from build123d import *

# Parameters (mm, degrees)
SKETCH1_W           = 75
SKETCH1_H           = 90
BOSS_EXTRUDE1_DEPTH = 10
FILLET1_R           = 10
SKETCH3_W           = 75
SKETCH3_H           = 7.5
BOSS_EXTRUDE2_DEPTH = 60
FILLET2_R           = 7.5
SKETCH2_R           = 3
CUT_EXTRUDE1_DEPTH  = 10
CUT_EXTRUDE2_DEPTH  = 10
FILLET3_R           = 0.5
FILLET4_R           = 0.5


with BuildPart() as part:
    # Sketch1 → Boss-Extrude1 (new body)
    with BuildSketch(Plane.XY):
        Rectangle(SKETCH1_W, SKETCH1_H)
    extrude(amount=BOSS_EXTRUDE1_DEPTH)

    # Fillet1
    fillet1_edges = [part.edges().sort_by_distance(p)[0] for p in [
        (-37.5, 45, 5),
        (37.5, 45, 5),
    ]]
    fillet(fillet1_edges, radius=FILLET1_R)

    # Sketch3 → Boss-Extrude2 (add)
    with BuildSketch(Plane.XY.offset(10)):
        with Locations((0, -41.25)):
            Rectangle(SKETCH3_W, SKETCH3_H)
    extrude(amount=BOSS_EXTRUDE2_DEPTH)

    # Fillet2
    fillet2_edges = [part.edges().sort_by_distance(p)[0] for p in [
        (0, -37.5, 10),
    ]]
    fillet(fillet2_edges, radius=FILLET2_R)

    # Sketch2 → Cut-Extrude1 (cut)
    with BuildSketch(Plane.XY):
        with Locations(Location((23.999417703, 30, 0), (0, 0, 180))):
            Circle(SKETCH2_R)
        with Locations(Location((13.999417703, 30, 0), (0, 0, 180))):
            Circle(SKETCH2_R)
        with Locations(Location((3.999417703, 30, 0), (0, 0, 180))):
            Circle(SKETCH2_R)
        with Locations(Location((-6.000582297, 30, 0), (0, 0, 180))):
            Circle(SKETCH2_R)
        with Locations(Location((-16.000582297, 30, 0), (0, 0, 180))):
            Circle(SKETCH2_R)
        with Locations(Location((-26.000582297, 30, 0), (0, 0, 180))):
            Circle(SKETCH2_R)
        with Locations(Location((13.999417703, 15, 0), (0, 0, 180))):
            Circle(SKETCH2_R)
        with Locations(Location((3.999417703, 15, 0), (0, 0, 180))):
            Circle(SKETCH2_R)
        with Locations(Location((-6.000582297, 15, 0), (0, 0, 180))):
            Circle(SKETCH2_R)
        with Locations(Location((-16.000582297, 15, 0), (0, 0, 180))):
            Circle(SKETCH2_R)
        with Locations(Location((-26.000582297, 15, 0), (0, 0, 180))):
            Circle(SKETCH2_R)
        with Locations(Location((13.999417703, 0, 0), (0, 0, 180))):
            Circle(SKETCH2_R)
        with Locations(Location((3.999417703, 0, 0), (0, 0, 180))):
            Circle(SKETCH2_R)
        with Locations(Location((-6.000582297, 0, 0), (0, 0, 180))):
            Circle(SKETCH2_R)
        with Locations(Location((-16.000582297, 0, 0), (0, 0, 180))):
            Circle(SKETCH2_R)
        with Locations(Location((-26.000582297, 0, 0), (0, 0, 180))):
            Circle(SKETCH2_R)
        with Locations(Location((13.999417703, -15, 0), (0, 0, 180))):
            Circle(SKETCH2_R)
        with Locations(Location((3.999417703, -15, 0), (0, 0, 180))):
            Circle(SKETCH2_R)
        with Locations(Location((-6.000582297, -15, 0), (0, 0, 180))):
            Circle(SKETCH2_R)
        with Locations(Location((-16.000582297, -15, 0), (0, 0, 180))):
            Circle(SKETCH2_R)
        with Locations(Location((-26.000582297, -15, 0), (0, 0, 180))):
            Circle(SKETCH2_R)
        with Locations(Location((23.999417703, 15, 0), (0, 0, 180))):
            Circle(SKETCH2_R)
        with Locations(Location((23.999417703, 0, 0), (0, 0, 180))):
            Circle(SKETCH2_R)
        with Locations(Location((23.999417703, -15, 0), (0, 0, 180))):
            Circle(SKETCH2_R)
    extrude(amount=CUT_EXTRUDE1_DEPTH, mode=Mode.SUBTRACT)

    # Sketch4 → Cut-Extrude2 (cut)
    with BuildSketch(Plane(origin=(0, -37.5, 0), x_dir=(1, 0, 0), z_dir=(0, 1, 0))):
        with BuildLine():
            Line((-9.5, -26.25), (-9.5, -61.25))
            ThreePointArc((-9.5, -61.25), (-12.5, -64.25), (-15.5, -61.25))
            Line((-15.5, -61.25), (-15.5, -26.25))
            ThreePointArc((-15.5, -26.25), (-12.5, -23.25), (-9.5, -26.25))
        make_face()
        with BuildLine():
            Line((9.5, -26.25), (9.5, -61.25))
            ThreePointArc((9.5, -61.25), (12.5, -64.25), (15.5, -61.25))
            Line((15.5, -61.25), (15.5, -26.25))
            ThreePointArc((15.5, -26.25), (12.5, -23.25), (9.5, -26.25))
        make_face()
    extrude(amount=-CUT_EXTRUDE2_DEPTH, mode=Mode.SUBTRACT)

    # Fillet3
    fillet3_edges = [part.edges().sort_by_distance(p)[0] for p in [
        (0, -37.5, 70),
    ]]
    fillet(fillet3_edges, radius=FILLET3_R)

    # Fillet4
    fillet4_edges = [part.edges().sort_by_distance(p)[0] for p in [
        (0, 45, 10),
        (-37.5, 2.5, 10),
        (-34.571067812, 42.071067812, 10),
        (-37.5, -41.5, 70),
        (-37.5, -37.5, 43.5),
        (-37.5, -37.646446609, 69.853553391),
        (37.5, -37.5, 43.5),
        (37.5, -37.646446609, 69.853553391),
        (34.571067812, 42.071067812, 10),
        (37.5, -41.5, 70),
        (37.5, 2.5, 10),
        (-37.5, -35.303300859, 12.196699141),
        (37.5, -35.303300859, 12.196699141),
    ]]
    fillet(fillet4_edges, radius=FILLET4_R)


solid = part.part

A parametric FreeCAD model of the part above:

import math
import FreeCAD as App
import Part
import Sketcher

V = App.Vector
Q = App.Units.Quantity


def edges_at(feature, points):
    """Names of the edges that pass closest to the given points."""
    edges = feature.Shape.Edges
    near = lambda p: min(range(len(edges)), key=lambda i: edges[i].distToShape(Part.Vertex(*p))[0])
    return sorted({f"Edge{near(p) + 1}" for p in points})

doc = App.newDocument("Part")
params = doc.addObject("Spreadsheet::Sheet", "Params")
for row, (alias, value) in enumerate([
    ("sketch1_width", "75 mm"),
    ("sketch1_height", "90 mm"),
    ("pad1_length", "10 mm"),
    ("fillet_radius", "10 mm"),
    ("sketch2_width", "75 mm"),
    ("sketch2_height", "7.5 mm"),
    ("pad2_length", "60 mm"),
    ("fillet2_radius", "7.5 mm"),
    ("sketch3_diameter", "6 mm"),
    ("pocket1_length", "10 mm"),
    ("sketch4_radius", "3 mm"),
    ("sketch4_height", "35 mm"),
    ("pocket2_length", "10 mm"),
    ("fillet3_radius", "0.5 mm"),
    ("fillet4_radius", "0.5 mm"),
], start=1):
    params.set(f"A{row}", alias)
    params.set(f"B{row}", "=" + value)
    params.setAlias(f"B{row}", alias)

body = doc.addObject("PartDesign::Body", "Body")

# Sketch on XY plane
sketch1 = doc.addObject("Sketcher::SketchObject", "Sketch")
body.addObject(sketch1)
sketch1.AttachmentSupport = (doc.XY_Plane, [""])
sketch1.MapMode = "FlatFace"
sketch1.addGeometry(Part.LineSegment(V(-38, 45, 0), V(-38, -45, 0)), False)
sketch1.addGeometry(Part.LineSegment(V(-38, -45, 0), V(38, -45, 0)), False)
sketch1.addGeometry(Part.LineSegment(V(38, -45, 0), V(38, 45, 0)), False)
sketch1.addGeometry(Part.LineSegment(V(38, 45, 0), V(-38, 45, 0)), False)
sketch1.addConstraint(Sketcher.Constraint("Coincident", 0, 2, 1, 1))
sketch1.addConstraint(Sketcher.Constraint("Coincident", 1, 2, 2, 1))
sketch1.addConstraint(Sketcher.Constraint("Coincident", 2, 2, 3, 1))
sketch1.addConstraint(Sketcher.Constraint("Coincident", 3, 2, 0, 1))
sketch1.addConstraint(Sketcher.Constraint("Vertical", 0))
sketch1.addConstraint(Sketcher.Constraint("Horizontal", 1))
sketch1.addConstraint(Sketcher.Constraint("Vertical", 2))
sketch1.addConstraint(Sketcher.Constraint("Horizontal", 3))
sketch1.addConstraint(Sketcher.Constraint("Symmetric", 0, 2, 2, 2, -1, 1))
sketch1.addConstraint(Sketcher.Constraint("DistanceX", 1, 1, 1, 2, Q("75 mm")))
sketch1.addConstraint(Sketcher.Constraint("DistanceY", 0, 2, 0, 1, Q("90 mm")))
sketch1.setExpression("Constraints[9]", "Params.sketch1_width")
sketch1.setExpression("Constraints[10]", "Params.sketch1_height")
pad1 = doc.addObject("PartDesign::Pad", "Pad")
body.addObject(pad1)
pad1.Profile = sketch1
pad1.setExpression("Length", "Params.pad1_length")
doc.recompute()

fillet = doc.addObject("PartDesign::Fillet", "Fillet")
body.addObject(fillet)
fillet.Base = (pad1, edges_at(pad1, [(-37.5, 45, 5), (37.5, 45, 5)]))
fillet.setExpression("Radius", "Params.fillet_radius")

# Sketch on XY plane
sketch2 = doc.addObject("Sketcher::SketchObject", "Sketch001")
body.addObject(sketch2)
sketch2.AttachmentSupport = (doc.XY_Plane, [""])
sketch2.MapMode = "FlatFace"
sketch2.AttachmentOffset = App.Placement(V(0, 0, 10), App.Rotation())
sketch2.addGeometry(Part.LineSegment(V(-38, -38, 0), V(-38, -45, 0)), False)
sketch2.addGeometry(Part.LineSegment(V(-38, -45, 0), V(38, -45, 0)), False)
sketch2.addGeometry(Part.LineSegment(V(38, -45, 0), V(38, -38, 0)), False)
sketch2.addGeometry(Part.LineSegment(V(38, -38, 0), V(-38, -38, 0)), False)
sketch2.addConstraint(Sketcher.Constraint("Coincident", 0, 2, 1, 1))
sketch2.addConstraint(Sketcher.Constraint("Coincident", 1, 2, 2, 1))
sketch2.addConstraint(Sketcher.Constraint("Coincident", 2, 2, 3, 1))
sketch2.addConstraint(Sketcher.Constraint("Coincident", 3, 2, 0, 1))
sketch2.addConstraint(Sketcher.Constraint("Vertical", 0))
sketch2.addConstraint(Sketcher.Constraint("Horizontal", 1))
sketch2.addConstraint(Sketcher.Constraint("Vertical", 2))
sketch2.addConstraint(Sketcher.Constraint("Horizontal", 3))
sketch2.addConstraint(Sketcher.Constraint("DistanceX", 1, 1, 1, 2, Q("75 mm")))
sketch2.addConstraint(Sketcher.Constraint("DistanceY", 0, 2, 0, 1, Q("7.5 mm")))
sketch2.addConstraint(Sketcher.Constraint("DistanceY", 0, 2, -1, 1, Q("45 mm")))
sketch2.addConstraint(Sketcher.Constraint("DistanceX", 0, 2, -1, 1, Q("37.5 mm")))
sketch2.setExpression("Constraints[8]", "Params.sketch2_width")
sketch2.setExpression("Constraints[9]", "Params.sketch2_height")
pad2 = doc.addObject("PartDesign::Pad", "Pad001")
body.addObject(pad2)
pad2.Profile = sketch2
pad2.setExpression("Length", "Params.pad2_length")
doc.recompute()

fillet2 = doc.addObject("PartDesign::Fillet", "Fillet001")
body.addObject(fillet2)
fillet2.Base = (pad2, edges_at(pad2, [(0, -37.5, 10)]))
fillet2.setExpression("Radius", "Params.fillet2_radius")

# Sketch on XY plane
sketch3 = doc.addObject("Sketcher::SketchObject", "Sketch002")
body.addObject(sketch3)
sketch3.AttachmentSupport = (doc.XY_Plane, [""])
sketch3.MapMode = "FlatFace"
sketch3.addGeometry(Part.Circle(V(24, 30, 0), V(0, 0, 1), 3), False)
sketch3.addGeometry(Part.Circle(V(14, 30, 0), V(0, 0, 1), 3), False)
sketch3.addGeometry(Part.Circle(V(4, 30, 0), V(0, 0, 1), 3), False)
sketch3.addGeometry(Part.Circle(V(-6, 30, 0), V(0, 0, 1), 3), False)
sketch3.addGeometry(Part.Circle(V(-16, 30, 0), V(0, 0, 1), 3), False)
sketch3.addGeometry(Part.Circle(V(-26, 30, 0), V(0, 0, 1), 3), False)
sketch3.addGeometry(Part.Circle(V(14, 15, 0), V(0, 0, 1), 3), False)
sketch3.addGeometry(Part.Circle(V(4, 15, 0), V(0, 0, 1), 3), False)
sketch3.addGeometry(Part.Circle(V(-6, 15, 0), V(0, 0, 1), 3), False)
sketch3.addGeometry(Part.Circle(V(-16, 15, 0), V(0, 0, 1), 3), False)
sketch3.addGeometry(Part.Circle(V(-26, 15, 0), V(0, 0, 1), 3), False)
sketch3.addGeometry(Part.Circle(V(14, 0, 0), V(0, 0, 1), 3), False)
sketch3.addGeometry(Part.Circle(V(4, 0, 0), V(0, 0, 1), 3), False)
sketch3.addGeometry(Part.Circle(V(-6, 0, 0), V(0, 0, 1), 3), False)
sketch3.addGeometry(Part.Circle(V(-16, 0, 0), V(0, 0, 1), 3), False)
sketch3.addGeometry(Part.Circle(V(-26, 0, 0), V(0, 0, 1), 3), False)
sketch3.addGeometry(Part.Circle(V(14, -15, 0), V(0, 0, 1), 3), False)
sketch3.addGeometry(Part.Circle(V(4, -15, 0), V(0, 0, 1), 3), False)
sketch3.addGeometry(Part.Circle(V(-6, -15, 0), V(0, 0, 1), 3), False)
sketch3.addGeometry(Part.Circle(V(-16, -15, 0), V(0, 0, 1), 3), False)
sketch3.addGeometry(Part.Circle(V(-26, -15, 0), V(0, 0, 1), 3), False)
sketch3.addGeometry(Part.Circle(V(24, 15, 0), V(0, 0, 1), 3), False)
sketch3.addGeometry(Part.Circle(V(24, 0, 0), V(0, 0, 1), 3), False)
sketch3.addGeometry(Part.Circle(V(24, -15, 0), V(0, 0, 1), 3), False)
sketch3.addConstraint(Sketcher.Constraint("Equal", 0, 1))
sketch3.addConstraint(Sketcher.Constraint("Equal", 1, 2))
sketch3.addConstraint(Sketcher.Constraint("Equal", 2, 3))
sketch3.addConstraint(Sketcher.Constraint("Equal", 3, 4))
sketch3.addConstraint(Sketcher.Constraint("Equal", 4, 5))
sketch3.addConstraint(Sketcher.Constraint("Equal", 5, 6))
sketch3.addConstraint(Sketcher.Constraint("Equal", 6, 7))
sketch3.addConstraint(Sketcher.Constraint("Equal", 7, 8))
sketch3.addConstraint(Sketcher.Constraint("Equal", 8, 9))
sketch3.addConstraint(Sketcher.Constraint("Equal", 9, 10))
sketch3.addConstraint(Sketcher.Constraint("Equal", 10, 11))
sketch3.addConstraint(Sketcher.Constraint("Equal", 11, 12))
sketch3.addConstraint(Sketcher.Constraint("Equal", 12, 13))
sketch3.addConstraint(Sketcher.Constraint("Equal", 13, 14))
sketch3.addConstraint(Sketcher.Constraint("Equal", 14, 15))
sketch3.addConstraint(Sketcher.Constraint("Equal", 15, 16))
sketch3.addConstraint(Sketcher.Constraint("Equal", 16, 17))
sketch3.addConstraint(Sketcher.Constraint("Equal", 17, 18))
sketch3.addConstraint(Sketcher.Constraint("Equal", 18, 19))
sketch3.addConstraint(Sketcher.Constraint("Equal", 19, 20))
sketch3.addConstraint(Sketcher.Constraint("Equal", 20, 21))
sketch3.addConstraint(Sketcher.Constraint("Equal", 21, 22))
sketch3.addConstraint(Sketcher.Constraint("Equal", 22, 23))
sketch3.addConstraint(Sketcher.Constraint("Symmetric", 6, 3, 16, 3, -1))
sketch3.addConstraint(Sketcher.Constraint("Symmetric", 7, 3, 17, 3, -1))
sketch3.addConstraint(Sketcher.Constraint("Symmetric", 8, 3, 18, 3, -1))
sketch3.addConstraint(Sketcher.Constraint("Symmetric", 9, 3, 19, 3, -1))
sketch3.addConstraint(Sketcher.Constraint("Symmetric", 10, 3, 20, 3, -1))
sketch3.addConstraint(Sketcher.Constraint("Symmetric", 21, 3, 23, 3, -1))
sketch3.addConstraint(Sketcher.Constraint("PointOnObject", 11, 3, -1))
sketch3.addConstraint(Sketcher.Constraint("PointOnObject", 12, 3, -1))
sketch3.addConstraint(Sketcher.Constraint("PointOnObject", 13, 3, -1))
sketch3.addConstraint(Sketcher.Constraint("PointOnObject", 14, 3, -1))
sketch3.addConstraint(Sketcher.Constraint("PointOnObject", 15, 3, -1))
sketch3.addConstraint(Sketcher.Constraint("PointOnObject", 22, 3, -1))
sketch3.addConstraint(Sketcher.Constraint("Horizontal", 0, 3, 1, 3))
sketch3.addConstraint(Sketcher.Constraint("Horizontal", 1, 3, 2, 3))
sketch3.addConstraint(Sketcher.Constraint("Horizontal", 2, 3, 3, 3))
sketch3.addConstraint(Sketcher.Constraint("Horizontal", 3, 3, 4, 3))
sketch3.addConstraint(Sketcher.Constraint("Horizontal", 4, 3, 5, 3))
sketch3.addConstraint(Sketcher.Constraint("Horizontal", 6, 3, 7, 3))
sketch3.addConstraint(Sketcher.Constraint("Horizontal", 7, 3, 8, 3))
sketch3.addConstraint(Sketcher.Constraint("Horizontal", 8, 3, 9, 3))
sketch3.addConstraint(Sketcher.Constraint("Horizontal", 9, 3, 10, 3))
sketch3.addConstraint(Sketcher.Constraint("Horizontal", 10, 3, 21, 3))
sketch3.addConstraint(Sketcher.Constraint("Vertical", 1, 3, 6, 3))
sketch3.addConstraint(Sketcher.Constraint("Vertical", 2, 3, 7, 3))
sketch3.addConstraint(Sketcher.Constraint("Vertical", 3, 3, 8, 3))
sketch3.addConstraint(Sketcher.Constraint("Vertical", 4, 3, 9, 3))
sketch3.addConstraint(Sketcher.Constraint("Vertical", 5, 3, 10, 3))
sketch3.addConstraint(Sketcher.Constraint("Vertical", 6, 3, 11, 3))
sketch3.addConstraint(Sketcher.Constraint("Vertical", 7, 3, 12, 3))
sketch3.addConstraint(Sketcher.Constraint("Vertical", 8, 3, 13, 3))
sketch3.addConstraint(Sketcher.Constraint("Vertical", 9, 3, 14, 3))
sketch3.addConstraint(Sketcher.Constraint("Vertical", 10, 3, 15, 3))
sketch3.addConstraint(Sketcher.Constraint("Vertical", 0, 3, 21, 3))
sketch3.addConstraint(Sketcher.Constraint("Vertical", 21, 3, 22, 3))
sketch3.addConstraint(Sketcher.Constraint("Diameter", 0, Q("6 mm")))
sketch3.addConstraint(Sketcher.Constraint("DistanceY", -1, 1, 0, 3, Q("30 mm")))
sketch3.addConstraint(Sketcher.Constraint("DistanceY", -1, 1, 6, 3, Q("15 mm")))
sketch3.addConstraint(Sketcher.Constraint("DistanceX", 1, 3, 0, 3, Q("10 mm")))
sketch3.addConstraint(Sketcher.Constraint("DistanceX", 2, 3, 1, 3, Q("10 mm")))
sketch3.addConstraint(Sketcher.Constraint("DistanceX", 3, 3, 2, 3, Q("10 mm")))
sketch3.addConstraint(Sketcher.Constraint("DistanceX", 4, 3, 3, 3, Q("10 mm")))
sketch3.addConstraint(Sketcher.Constraint("DistanceX", 5, 3, 4, 3, Q("10 mm")))
sketch3.addConstraint(Sketcher.Constraint("DistanceX", -1, 1, 0, 3, Q("23.999418 mm")))
sketch3.setExpression("Constraints[57]", "Params.sketch3_diameter")
pocket1 = doc.addObject("PartDesign::Pocket", "Pocket")
body.addObject(pocket1)
pocket1.Profile = sketch3
pocket1.setExpression("Length", "Params.pocket1_length")
pocket1.Reversed = True

# Sketch on XZ plane
sketch4 = doc.addObject("Sketcher::SketchObject", "Sketch003")
body.addObject(sketch4)
sketch4.AttachmentSupport = (doc.XZ_Plane, [""])
sketch4.MapMode = "FlatFace"
sketch4.AttachmentOffset = App.Placement(V(0, 0, 37.5), App.Rotation())
sketch4.addGeometry(Part.LineSegment(V(-9.5, 61.2, 0), V(-9.5, 26.2, 0)), False)
sketch4.addGeometry(Part.ArcOfCircle(Part.Circle(V(-12.5, 26.2, 0), V(0, 0, 1), 3), math.radians(180), math.radians(360)), False)
sketch4.addGeometry(Part.LineSegment(V(-15.5, 26.2, 0), V(-15.5, 61.2, 0)), False)
sketch4.addGeometry(Part.ArcOfCircle(Part.Circle(V(-12.5, 61.2, 0), V(0, 0, 1), 3), math.radians(0), math.radians(180)), False)
sketch4.addGeometry(Part.LineSegment(V(9.5, 26.2, 0), V(9.5, 61.2, 0)), False)
sketch4.addGeometry(Part.ArcOfCircle(Part.Circle(V(12.5, 61.2, 0), V(0, 0, 1), 3), math.radians(0), math.radians(180)), False)
sketch4.addGeometry(Part.LineSegment(V(15.5, 61.2, 0), V(15.5, 26.2, 0)), False)
sketch4.addGeometry(Part.ArcOfCircle(Part.Circle(V(12.5, 26.2, 0), V(0, 0, 1), 3), math.radians(180), math.radians(360)), False)
sketch4.addConstraint(Sketcher.Constraint("Tangent", 0, 2, 1, 2))
sketch4.addConstraint(Sketcher.Constraint("Tangent", 1, 1, 2, 1))
sketch4.addConstraint(Sketcher.Constraint("Tangent", 2, 2, 3, 2))
sketch4.addConstraint(Sketcher.Constraint("Tangent", 3, 1, 0, 1))
sketch4.addConstraint(Sketcher.Constraint("Tangent", 4, 2, 5, 2))
sketch4.addConstraint(Sketcher.Constraint("Tangent", 5, 1, 6, 1))
sketch4.addConstraint(Sketcher.Constraint("Tangent", 6, 2, 7, 2))
sketch4.addConstraint(Sketcher.Constraint("Tangent", 7, 1, 4, 1))
sketch4.addConstraint(Sketcher.Constraint("Vertical", 0))
sketch4.addConstraint(Sketcher.Constraint("Vertical", 2))
sketch4.addConstraint(Sketcher.Constraint("Vertical", 4))
sketch4.addConstraint(Sketcher.Constraint("Vertical", 6))
sketch4.addConstraint(Sketcher.Constraint("Equal", 3, 5))
sketch4.addConstraint(Sketcher.Constraint("Symmetric", 3, 3, 5, 3, -2))
sketch4.addConstraint(Sketcher.Constraint("Horizontal", 1, 3, 7, 3))
sketch4.addConstraint(Sketcher.Constraint("Radius", 1, Q("3 mm")))
sketch4.addConstraint(Sketcher.Constraint("DistanceY", 0, 2, 0, 1, Q("35 mm")))
sketch4.addConstraint(Sketcher.Constraint("DistanceX", 3, 3, 5, 3, Q("25 mm")))
sketch4.addConstraint(Sketcher.Constraint("DistanceY", -1, 1, 1, 3, Q("26.25 mm")))
sketch4.setExpression("Constraints[15]", "Params.sketch4_radius")
sketch4.setExpression("Constraints[16]", "Params.sketch4_height")
pocket2 = doc.addObject("PartDesign::Pocket", "Pocket001")
body.addObject(pocket2)
pocket2.Profile = sketch4
pocket2.setExpression("Length", "Params.pocket2_length")
pocket2.Reversed = True
doc.recompute()

fillet3 = doc.addObject("PartDesign::Fillet", "Fillet002")
body.addObject(fillet3)
fillet3.Base = (pocket2, edges_at(pocket2, [(0, -37.5, 70)]))
fillet3.setExpression("Radius", "Params.fillet3_radius")
doc.recompute()

fillet4 = doc.addObject("PartDesign::Fillet", "Fillet003")
body.addObject(fillet4)
fillet4.Base = (fillet3, edges_at(fillet3, [
    (0, 45, 10),
    (-37.5, 2.5, 10),
    (-34.571, 42.071, 10),
    (-37.5, -41.5, 70),
    (-37.5, -37.5, 43.5),
    (-37.5, -37.646, 69.854),
    (37.5, -37.5, 43.5),
    (37.5, -37.646, 69.854),
    (34.571, 42.071, 10),
    (37.5, -41.5, 70),
    (37.5, 2.5, 10),
    (-37.5, -35.303, 12.197),
    (37.5, -35.303, 12.197),
]))
fillet4.setExpression("Radius", "Params.fillet4_radius")

doc.recompute()
